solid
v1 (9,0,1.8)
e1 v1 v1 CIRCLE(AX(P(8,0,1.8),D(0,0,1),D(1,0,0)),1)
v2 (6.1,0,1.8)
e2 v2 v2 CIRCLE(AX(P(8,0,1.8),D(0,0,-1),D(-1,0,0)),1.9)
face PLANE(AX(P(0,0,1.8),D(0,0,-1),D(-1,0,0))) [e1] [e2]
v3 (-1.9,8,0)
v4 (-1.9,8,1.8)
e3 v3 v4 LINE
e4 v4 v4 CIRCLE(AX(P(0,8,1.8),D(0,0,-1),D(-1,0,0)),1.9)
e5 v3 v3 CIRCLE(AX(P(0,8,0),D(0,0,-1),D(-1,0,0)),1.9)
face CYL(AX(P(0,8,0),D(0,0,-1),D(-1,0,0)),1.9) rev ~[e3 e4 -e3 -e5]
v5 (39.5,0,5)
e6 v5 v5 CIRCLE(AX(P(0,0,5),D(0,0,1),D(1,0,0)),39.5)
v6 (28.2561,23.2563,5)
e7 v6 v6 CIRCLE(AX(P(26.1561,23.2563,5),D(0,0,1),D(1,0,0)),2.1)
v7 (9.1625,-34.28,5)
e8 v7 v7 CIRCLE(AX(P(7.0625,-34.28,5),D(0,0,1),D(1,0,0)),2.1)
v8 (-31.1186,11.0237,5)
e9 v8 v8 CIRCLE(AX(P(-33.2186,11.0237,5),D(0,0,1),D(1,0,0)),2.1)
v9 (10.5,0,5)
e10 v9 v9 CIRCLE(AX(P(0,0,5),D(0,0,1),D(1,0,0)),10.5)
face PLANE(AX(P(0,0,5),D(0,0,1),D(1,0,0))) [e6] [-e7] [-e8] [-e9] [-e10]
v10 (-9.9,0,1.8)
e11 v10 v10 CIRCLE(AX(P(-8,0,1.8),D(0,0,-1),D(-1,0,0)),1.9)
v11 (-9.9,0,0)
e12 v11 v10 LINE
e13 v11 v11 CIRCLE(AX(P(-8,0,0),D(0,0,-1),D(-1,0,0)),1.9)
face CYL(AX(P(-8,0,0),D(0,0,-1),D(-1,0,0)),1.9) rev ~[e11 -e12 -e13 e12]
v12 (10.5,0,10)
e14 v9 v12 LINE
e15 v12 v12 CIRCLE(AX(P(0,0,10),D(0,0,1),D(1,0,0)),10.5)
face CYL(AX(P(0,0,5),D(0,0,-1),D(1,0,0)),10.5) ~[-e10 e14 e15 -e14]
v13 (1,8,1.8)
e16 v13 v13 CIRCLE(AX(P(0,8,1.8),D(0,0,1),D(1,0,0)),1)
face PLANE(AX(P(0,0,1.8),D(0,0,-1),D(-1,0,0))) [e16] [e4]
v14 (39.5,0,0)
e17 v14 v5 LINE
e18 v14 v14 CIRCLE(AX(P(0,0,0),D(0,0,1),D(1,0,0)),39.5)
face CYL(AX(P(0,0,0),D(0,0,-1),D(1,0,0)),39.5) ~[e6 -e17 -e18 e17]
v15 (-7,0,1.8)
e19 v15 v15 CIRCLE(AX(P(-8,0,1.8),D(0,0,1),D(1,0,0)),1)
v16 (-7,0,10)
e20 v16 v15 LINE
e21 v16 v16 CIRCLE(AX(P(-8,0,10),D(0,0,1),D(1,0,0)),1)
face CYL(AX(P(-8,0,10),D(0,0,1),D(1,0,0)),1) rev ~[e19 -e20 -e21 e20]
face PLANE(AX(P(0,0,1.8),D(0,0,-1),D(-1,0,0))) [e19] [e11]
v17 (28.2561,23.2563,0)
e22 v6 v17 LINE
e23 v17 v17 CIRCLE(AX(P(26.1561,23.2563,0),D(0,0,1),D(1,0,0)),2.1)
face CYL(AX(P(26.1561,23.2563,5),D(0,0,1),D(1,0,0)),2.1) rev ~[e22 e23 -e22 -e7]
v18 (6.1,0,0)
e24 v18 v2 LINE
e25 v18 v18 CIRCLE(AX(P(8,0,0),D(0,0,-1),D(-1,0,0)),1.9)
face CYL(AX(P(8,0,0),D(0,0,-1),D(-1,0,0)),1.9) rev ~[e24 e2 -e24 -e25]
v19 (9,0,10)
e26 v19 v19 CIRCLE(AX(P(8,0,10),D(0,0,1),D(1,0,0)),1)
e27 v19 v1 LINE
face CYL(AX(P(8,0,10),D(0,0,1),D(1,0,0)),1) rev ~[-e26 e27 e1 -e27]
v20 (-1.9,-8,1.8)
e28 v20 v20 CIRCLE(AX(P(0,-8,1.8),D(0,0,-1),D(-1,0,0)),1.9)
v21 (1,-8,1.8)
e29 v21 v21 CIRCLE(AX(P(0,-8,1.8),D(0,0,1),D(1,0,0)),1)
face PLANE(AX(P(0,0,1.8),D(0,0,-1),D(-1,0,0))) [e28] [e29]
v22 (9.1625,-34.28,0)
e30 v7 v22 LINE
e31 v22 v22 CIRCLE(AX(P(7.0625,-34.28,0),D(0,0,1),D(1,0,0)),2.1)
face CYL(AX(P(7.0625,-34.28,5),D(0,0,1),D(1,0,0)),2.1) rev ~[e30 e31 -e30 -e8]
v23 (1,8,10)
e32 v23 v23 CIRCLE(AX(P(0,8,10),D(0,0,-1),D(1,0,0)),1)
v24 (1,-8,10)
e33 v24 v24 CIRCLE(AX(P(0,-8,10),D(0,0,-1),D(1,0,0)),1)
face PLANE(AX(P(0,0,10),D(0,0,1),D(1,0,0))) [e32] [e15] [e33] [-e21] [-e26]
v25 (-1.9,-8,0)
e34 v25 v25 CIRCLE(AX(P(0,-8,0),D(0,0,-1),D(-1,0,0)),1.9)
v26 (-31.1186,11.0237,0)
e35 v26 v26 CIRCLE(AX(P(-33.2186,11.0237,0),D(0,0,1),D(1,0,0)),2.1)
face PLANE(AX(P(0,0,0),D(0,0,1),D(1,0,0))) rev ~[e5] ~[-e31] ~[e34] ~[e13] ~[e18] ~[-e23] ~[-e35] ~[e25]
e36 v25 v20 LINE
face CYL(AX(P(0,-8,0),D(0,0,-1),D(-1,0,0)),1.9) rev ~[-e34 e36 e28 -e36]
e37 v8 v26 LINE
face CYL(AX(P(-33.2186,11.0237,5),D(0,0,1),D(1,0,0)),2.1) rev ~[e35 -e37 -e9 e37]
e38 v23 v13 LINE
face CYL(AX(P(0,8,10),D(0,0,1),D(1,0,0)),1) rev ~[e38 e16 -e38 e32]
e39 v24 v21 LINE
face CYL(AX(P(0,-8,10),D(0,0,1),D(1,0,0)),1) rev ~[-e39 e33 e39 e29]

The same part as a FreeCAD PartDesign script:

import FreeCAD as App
import Part
import Sketcher

V = App.Vector
Q = App.Units.Quantity

doc = App.newDocument("Part")
body = doc.addObject("PartDesign::Body", "Body")

# Sketch on XY plane
sketch1 = doc.addObject("Sketcher::SketchObject", "Sketch")
body.addObject(sketch1)
sketch1.AttachmentSupport = (doc.XY_Plane, [""])
sketch1.MapMode = "FlatFace"
sketch1.addGeometry(Part.Circle(V(0, 0, 0), V(0, 0, 1), 39.5), False)
sketch1.addConstraint([
    Sketcher.Constraint("Coincident", 0, 3, -1, 1),
    Sketcher.Constraint("Diameter", 0, Q("79 mm")),
])
pad1 = doc.addObject("PartDesign::Pad", "Pad")
body.addObject(pad1)
pad1.Profile = sketch1
pad1.Length = 5

# Sketch on XY plane
sketch2 = doc.addObject("Sketcher::SketchObject", "Sketch001")
body.addObject(sketch2)
sketch2.AttachmentSupport = (doc.XY_Plane, [""])
sketch2.MapMode = "FlatFace"
sketch2.AttachmentOffset = App.Placement(V(0, 0, 5), App.Rotation())
sketch2.addGeometry([
    Part.Circle(V(26.1561, 23.2563, 0), V(0, 0, 1), 2.1),
    Part.Circle(V(-33.2186, 11.0237, 0), V(0, 0, 1), 2.1),
    Part.Circle(V(7.0625, -34.28, 0), V(0, 0, 1), 2.1),
], False)
sketch2.addConstraint([
    Sketcher.Constraint("Equal", 0, 1),
    Sketcher.Constraint("Equal", 1, 2),
    Sketcher.Constraint("Diameter", 0, Q("4.2 mm")),
    Sketcher.Constraint("DistanceY", 2, 3, -1, 1, Q("34.28 mm")),
    Sketcher.Constraint("DistanceX", -1, 1, 0, 3, Q("26.156 mm")),
    Sketcher.Constraint("DistanceX", 1, 3, 2, 3, Q("40.281 mm")),
    Sketcher.Constraint("DistanceY", -1, 1, 0, 3, Q("23.2563 mm")),
    Sketcher.Constraint("DistanceX", 1, 3, -1, 1, Q("33.2186 mm")),
    Sketcher.Constraint("DistanceY", -1, 1, 1, 3, Q("11.0237 mm")),
])
pocket1 = doc.addObject("PartDesign::Pocket", "Pocket")
body.addObject(pocket1)
pocket1.Profile = sketch2
pocket1.Length = 5

# Sketch on XY plane
sketch3 = doc.addObject("Sketcher::SketchObject", "Sketch002")
body.addObject(sketch3)
sketch3.AttachmentSupport = (doc.XY_Plane, [""])
sketch3.MapMode = "FlatFace"
sketch3.AttachmentOffset = App.Placement(V(0, 0, 5), App.Rotation())
sketch3.addGeometry(Part.Circle(V(0, 0, 0), V(0, 0, 1), 10.5), False)
sketch3.addConstraint([
    Sketcher.Constraint("Coincident", 0, 3, -1, 1),
    Sketcher.Constraint("Diameter", 0, Q("21 mm")),
])
pad2 = doc.addObject("PartDesign::Pad", "Pad001")
body.addObject(pad2)
pad2.Profile = sketch3
pad2.Length = 5

# Sketch on XY plane
sketch4 = doc.addObject("Sketcher::SketchObject", "Sketch003")
body.addObject(sketch4)
sketch4.AttachmentSupport = (doc.XY_Plane, [""])
sketch4.MapMode = "FlatFace"
sketch4.AttachmentOffset = App.Placement(V(0, 0, 10), App.Rotation())
sketch4.addGeometry([
    Part.Circle(V(0, 8, 0), V(0, 0, 1), 1),
    Part.Circle(V(0, -8, 0), V(0, 0, 1), 1),
    Part.Circle(V(-8, 0, 0), V(0, 0, 1), 1),
    Part.Circle(V(8, 0, 0), V(0, 0, 1), 1),
], False)
sketch4.addConstraint([
    Sketcher.Constraint("Equal", 0, 1),
    Sketcher.Constraint("Equal", 1, 2),
    Sketcher.Constraint("Equal", 2, 3),
    Sketcher.Constraint("Symmetric", 0, 3, 1, 3, -1, 1),
    Sketcher.Constraint("Symmetric", 2, 3, 3, 3, -1, 1),
    Sketcher.Constraint("PointOnObject", 0, 3, -2),
    Sketcher.Constraint("PointOnObject", 2, 3, -1),
    Sketcher.Constraint("Diameter", 0, Q("2 mm")),
    Sketcher.Constraint("DistanceY", -1, 1, 0, 3, Q("8 mm")),
    Sketcher.Constraint("DistanceX", 2, 3, -1, 1, Q("8 mm")),
])
pocket2 = doc.addObject("PartDesign::Pocket", "Pocket001")
body.addObject(pocket2)
pocket2.Profile = sketch4
pocket2.Length = 10

# Sketch on XY plane
sketch5 = doc.addObject("Sketcher::SketchObject", "Sketch004")
body.addObject(sketch5)
sketch5.AttachmentSupport = (doc.XY_Plane, [""])
sketch5.MapMode = "FlatFace"
sketch5.addGeometry([
    Part.Circle(V(8, 0, 0), V(0, 0, 1), 1.9),  # 0
    Part.Circle(V(8, 0, 0), V(0, 0, 1), 1),  # 1
    Part.Circle(V(0, -8, 0), V(0, 0, 1), 1.9),  # 2
    Part.Circle(V(-8, 0, 0), V(0, 0, 1), 1.9),  # 3
    Part.Circle(V(0, 8, 0), V(0, 0, 1), 1.9),  # 4
], False)
sketch5.addConstraint([
    Sketcher.Constraint("Coincident", 1, 3, 0, 3),
    Sketcher.Constraint("Equal", 0, 2),
    Sketcher.Constraint("Equal", 2, 3),
    Sketcher.Constraint("Equal", 3, 4),
    Sketcher.Constraint("Symmetric", 0, 3, 3, 3, -1, 1),
    Sketcher.Constraint("Symmetric", 2, 3, 4, 3, -1, 1),
    Sketcher.Constraint("PointOnObject", 0, 3, -1),
    Sketcher.Constraint("PointOnObject", 2, 3, -2),
    Sketcher.Constraint("Diameter", 0, Q("3.8 mm")),
    Sketcher.Constraint("Diameter", 1, Q("2 mm")),
    Sketcher.Constraint("DistanceX", -1, 1, 0, 3, Q("8 mm")),
    Sketcher.Constraint("DistanceY", 2, 3, -1, 1, Q("8 mm")),
])
pocket3 = doc.addObject("PartDesign::Pocket", "Pocket002")
body.addObject(pocket3)
pocket3.Profile = sketch5
pocket3.Length = 1.8
pocket3.Reversed = True

doc.recompute()
